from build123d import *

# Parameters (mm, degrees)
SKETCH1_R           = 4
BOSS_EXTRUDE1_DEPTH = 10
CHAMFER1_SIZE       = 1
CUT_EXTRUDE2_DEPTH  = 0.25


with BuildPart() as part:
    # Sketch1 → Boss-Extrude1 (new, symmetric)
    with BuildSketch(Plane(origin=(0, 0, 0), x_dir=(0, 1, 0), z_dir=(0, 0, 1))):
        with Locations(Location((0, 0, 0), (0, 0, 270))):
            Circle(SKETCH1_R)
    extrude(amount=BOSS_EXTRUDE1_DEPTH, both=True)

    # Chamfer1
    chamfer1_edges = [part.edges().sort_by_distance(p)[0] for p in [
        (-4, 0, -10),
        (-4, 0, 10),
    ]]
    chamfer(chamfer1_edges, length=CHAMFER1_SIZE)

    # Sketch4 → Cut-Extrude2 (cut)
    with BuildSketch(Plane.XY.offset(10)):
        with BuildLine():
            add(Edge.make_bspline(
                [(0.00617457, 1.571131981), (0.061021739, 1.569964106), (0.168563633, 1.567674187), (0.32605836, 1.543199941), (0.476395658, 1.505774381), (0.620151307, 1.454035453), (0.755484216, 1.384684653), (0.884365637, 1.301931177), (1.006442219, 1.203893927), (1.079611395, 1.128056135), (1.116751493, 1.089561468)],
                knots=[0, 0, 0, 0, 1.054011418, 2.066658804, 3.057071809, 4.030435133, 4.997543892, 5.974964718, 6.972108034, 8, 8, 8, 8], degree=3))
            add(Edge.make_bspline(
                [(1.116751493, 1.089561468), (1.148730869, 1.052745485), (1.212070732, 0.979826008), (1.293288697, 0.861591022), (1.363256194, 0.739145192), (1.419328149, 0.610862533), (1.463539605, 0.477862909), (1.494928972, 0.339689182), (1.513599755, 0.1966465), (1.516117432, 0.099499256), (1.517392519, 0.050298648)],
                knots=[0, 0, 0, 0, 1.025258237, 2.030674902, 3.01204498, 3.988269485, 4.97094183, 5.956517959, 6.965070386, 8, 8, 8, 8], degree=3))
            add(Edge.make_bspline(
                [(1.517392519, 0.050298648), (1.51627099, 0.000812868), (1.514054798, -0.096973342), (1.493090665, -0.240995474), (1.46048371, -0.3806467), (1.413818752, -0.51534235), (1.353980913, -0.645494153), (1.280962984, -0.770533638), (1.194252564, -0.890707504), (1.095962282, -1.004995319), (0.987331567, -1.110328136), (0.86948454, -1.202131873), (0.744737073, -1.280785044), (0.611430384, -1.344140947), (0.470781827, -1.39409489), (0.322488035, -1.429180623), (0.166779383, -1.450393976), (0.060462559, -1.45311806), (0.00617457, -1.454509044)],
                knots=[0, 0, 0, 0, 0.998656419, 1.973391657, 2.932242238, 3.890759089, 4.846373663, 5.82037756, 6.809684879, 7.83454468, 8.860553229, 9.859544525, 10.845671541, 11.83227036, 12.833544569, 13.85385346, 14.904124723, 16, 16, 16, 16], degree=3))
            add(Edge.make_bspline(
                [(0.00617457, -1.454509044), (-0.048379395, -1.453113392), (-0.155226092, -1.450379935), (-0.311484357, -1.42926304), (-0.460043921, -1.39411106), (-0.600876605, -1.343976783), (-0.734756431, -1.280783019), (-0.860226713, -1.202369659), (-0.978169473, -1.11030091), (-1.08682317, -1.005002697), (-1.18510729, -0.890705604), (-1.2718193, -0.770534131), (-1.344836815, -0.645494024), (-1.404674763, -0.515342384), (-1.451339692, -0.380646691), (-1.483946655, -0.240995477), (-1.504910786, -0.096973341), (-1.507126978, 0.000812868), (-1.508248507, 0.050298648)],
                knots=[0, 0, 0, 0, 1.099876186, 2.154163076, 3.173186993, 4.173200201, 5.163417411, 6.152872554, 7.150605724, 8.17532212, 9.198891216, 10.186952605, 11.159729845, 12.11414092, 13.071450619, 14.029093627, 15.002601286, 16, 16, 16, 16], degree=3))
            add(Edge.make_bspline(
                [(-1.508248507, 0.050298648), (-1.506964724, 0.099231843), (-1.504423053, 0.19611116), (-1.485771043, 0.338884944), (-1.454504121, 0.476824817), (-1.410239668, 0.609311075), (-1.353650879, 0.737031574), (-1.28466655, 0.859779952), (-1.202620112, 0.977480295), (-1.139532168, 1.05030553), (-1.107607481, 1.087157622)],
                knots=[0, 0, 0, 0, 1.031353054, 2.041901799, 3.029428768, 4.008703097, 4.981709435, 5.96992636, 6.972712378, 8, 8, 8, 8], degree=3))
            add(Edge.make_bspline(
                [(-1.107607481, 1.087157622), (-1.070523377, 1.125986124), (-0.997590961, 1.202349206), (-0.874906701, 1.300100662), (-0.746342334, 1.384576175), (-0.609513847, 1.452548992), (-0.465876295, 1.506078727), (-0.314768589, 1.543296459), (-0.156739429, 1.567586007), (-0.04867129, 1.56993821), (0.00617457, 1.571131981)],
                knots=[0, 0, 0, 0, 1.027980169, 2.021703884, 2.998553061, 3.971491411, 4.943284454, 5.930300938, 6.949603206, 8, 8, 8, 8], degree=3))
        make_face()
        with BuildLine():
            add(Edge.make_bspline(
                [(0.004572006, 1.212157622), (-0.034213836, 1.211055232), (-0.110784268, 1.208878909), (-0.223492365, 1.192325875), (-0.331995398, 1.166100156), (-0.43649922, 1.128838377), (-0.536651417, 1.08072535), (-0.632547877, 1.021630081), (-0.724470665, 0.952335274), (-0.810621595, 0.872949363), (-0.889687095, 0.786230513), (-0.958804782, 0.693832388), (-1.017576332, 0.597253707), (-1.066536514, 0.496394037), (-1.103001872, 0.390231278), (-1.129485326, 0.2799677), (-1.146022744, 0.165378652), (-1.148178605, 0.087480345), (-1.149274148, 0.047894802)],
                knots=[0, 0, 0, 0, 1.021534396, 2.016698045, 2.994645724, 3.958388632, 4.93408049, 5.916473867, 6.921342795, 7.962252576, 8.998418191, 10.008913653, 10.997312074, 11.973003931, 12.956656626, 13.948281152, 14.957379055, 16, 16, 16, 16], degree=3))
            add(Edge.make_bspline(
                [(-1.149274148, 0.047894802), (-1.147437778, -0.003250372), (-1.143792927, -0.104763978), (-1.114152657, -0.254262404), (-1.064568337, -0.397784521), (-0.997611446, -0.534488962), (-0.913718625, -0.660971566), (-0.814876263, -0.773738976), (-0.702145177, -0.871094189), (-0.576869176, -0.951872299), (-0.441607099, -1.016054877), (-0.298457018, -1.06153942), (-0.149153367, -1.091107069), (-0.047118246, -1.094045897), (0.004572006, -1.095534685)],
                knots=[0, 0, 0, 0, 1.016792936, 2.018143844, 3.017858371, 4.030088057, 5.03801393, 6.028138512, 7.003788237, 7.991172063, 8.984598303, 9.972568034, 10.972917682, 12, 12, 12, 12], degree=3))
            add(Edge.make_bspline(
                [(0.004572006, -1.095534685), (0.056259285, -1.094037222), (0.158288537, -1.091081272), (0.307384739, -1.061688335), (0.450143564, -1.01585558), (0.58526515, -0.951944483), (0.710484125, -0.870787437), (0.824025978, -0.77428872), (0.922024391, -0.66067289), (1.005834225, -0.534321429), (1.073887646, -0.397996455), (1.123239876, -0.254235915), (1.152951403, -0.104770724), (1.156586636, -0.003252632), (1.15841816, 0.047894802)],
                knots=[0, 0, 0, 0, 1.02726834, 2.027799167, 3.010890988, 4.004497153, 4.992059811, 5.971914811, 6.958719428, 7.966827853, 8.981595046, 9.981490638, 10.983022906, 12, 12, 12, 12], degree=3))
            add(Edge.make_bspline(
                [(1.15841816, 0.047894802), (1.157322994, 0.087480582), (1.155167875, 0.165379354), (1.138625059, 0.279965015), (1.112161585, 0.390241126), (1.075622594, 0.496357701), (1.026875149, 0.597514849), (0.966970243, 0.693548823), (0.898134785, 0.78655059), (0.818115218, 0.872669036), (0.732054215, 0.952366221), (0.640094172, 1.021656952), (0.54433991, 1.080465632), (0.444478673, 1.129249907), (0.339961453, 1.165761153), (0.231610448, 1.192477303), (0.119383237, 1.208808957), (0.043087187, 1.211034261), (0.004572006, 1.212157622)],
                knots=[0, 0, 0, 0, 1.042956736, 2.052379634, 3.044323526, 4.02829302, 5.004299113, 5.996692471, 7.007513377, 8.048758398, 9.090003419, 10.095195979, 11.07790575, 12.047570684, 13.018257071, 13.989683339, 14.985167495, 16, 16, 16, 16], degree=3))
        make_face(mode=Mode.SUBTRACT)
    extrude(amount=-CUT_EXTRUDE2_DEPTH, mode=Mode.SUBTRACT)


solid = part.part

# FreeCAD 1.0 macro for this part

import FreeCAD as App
import Part
import Sketcher
Q = App.Units.Quantity


def edges_at(feature, points):
    """Names of the edges that pass closest to the given points."""
    edges = feature.Shape.Edges
    near = lambda p: min(range(len(edges)), key=lambda i: edges[i].distToShape(Part.Vertex(*p))[0])
    return sorted({f"Edge{near(p) + 1}" for p in points})

doc = App.newDocument("Part")
body = doc.addObject("PartDesign::Body", "Body")

# Sketch on XY plane
sketch1 = doc.addObject("Sketcher::SketchObject", "Sketch")
body.addObject(sketch1)
sketch1.AttachmentSupport = (doc.XY_Plane, [""])
sketch1.MapMode = "FlatFace"
sketch1.addGeometry(Part.Circle(App.Vector(0, 0, 0), App.Vector(0, 0, 1), 4), False)
sketch1.addConstraint([
    Sketcher.Constraint("Coincident", 0, 3, -1, 1),
    Sketcher.Constraint("Diameter", 0, Q("8 mm")),
])
pad1 = doc.addObject("PartDesign::Pad", "Pad")
body.addObject(pad1)
pad1.Profile = sketch1
pad1.Length = 20
pad1.Midplane = True
doc.recompute()

chamfer = doc.addObject("PartDesign::Chamfer", "Chamfer")
body.addObject(chamfer)
chamfer.Base = (pad1, edges_at(pad1, [(-4, 0, -10), (-4, 0, 10)]))
chamfer.Size = 1

# Sketch on XY plane
sketch2 = doc.addObject("Sketcher::SketchObject", "Sketch001")
body.addObject(sketch2)
sketch2.AttachmentSupport = (doc.XY_Plane, [""])
sketch2.MapMode = "FlatFace"
sketch2.AttachmentOffset = App.Placement(App.Vector(0, 0, 10), App.Rotation())
sketch2.addGeometry([
    Part.BSplineCurve([App.Vector(0.006175, 1.571132, 0), App.Vector(0.061022, 1.569964, 0), App.Vector(0.168564, 1.567674, 0), App.Vector(0.326058, 1.5432, 0), App.Vector(0.476396, 1.505774, 0), App.Vector(0.620151, 1.454035, 0), App.Vector(0.755484, 1.384685, 0), App.Vector(0.884366, 1.301931, 0), App.Vector(1.006442, 1.203894, 0), App.Vector(1.079611, 1.128056, 0), App.Vector(1.116751, 1.089561, 0)], [4, 1, 1, 1, 1, 1, 1, 1, 4], [0, 1.054011418, 2.066658804, 3.057071809, 4.030435133, 4.997543892, 5.974964718, 6.972108034, 8], False, 3, [1, 1, 1, 1, 1, 1, 1, 1, 1, 1, 1], False),  # 0
    Part.BSplineCurve([App.Vector(-1.107607, 1.087158, 0), App.Vector(-1.070523, 1.125986, 0), App.Vector(-0.997591, 1.202349, 0), App.Vector(-0.874907, 1.300101, 0), App.Vector(-0.746342, 1.384576, 0), App.Vector(-0.609514, 1.452549, 0), App.Vector(-0.465876, 1.506079, 0), App.Vector(-0.314769, 1.543296, 0), App.Vector(-0.156739, 1.567586, 0), App.Vector(-0.048671, 1.569938, 0), App.Vector(0.006175, 1.571132, 0)], [4, 1, 1, 1, 1, 1, 1, 1, 4], [0, 1.027980169, 2.021703884, 2.998553061, 3.971491411, 4.943284454, 5.930300938, 6.949603206, 8], False, 3, [1, 1, 1, 1, 1, 1, 1, 1, 1, 1, 1], False),  # 1
    Part.BSplineCurve([App.Vector(-1.508249, 0.050299, 0), App.Vector(-1.506965, 0.099232, 0), App.Vector(-1.504423, 0.196111, 0), App.Vector(-1.485771, 0.338885, 0), App.Vector(-1.454504, 0.476825, 0), App.Vector(-1.41024, 0.609311, 0), App.Vector(-1.353651, 0.737032, 0), App.Vector(-1.284667, 0.85978, 0), App.Vector(-1.20262, 0.97748, 0), App.Vector(-1.139532, 1.050306, 0), App.Vector(-1.107607, 1.087158, 0)], [4, 1, 1, 1, 1, 1, 1, 1, 4], [0, 1.031353054, 2.041901799, 3.029428768, 4.008703097, 4.981709435, 5.96992636, 6.972712378, 8], False, 3, [1, 1, 1, 1, 1, 1, 1, 1, 1, 1, 1], False),  # 2
    Part.BSplineCurve([App.Vector(0.006175, -1.454509, 0), App.Vector(-0.048379, -1.453113, 0), App.Vector(-0.155226, -1.45038, 0), App.Vector(-0.311484, -1.429263, 0), App.Vector(-0.460044, -1.394111, 0), App.Vector(-0.600877, -1.343977, 0), App.Vector(-0.734756, -1.280783, 0), App.Vector(-0.860227, -1.20237, 0), App.Vector(-0.978169, -1.110301, 0), App.Vector(-1.086823, -1.005003, 0), App.Vector(-1.185107, -0.890706, 0), App.Vector(-1.271819, -0.770534, 0), App.Vector(-1.344837, -0.645494, 0), App.Vector(-1.404675, -0.515342, 0), App.Vector(-1.45134, -0.380647, 0), App.Vector(-1.483947, -0.240995, 0), App.Vector(-1.504911, -0.096973, 0), App.Vector(-1.507127, 0.000813, 0), App.Vector(-1.508249, 0.050299, 0)], [4, 1, 1, 1, 1, 1, 1, 1, 1, 1, 1, 1, 1, 1, 1, 1, 4], [0, 1.099876186, 2.154163076, 3.173186993, 4.173200201, 5.163417411, 6.152872554, 7.150605724, 8.17532212, 9.198891216, 10.186952605, 11.159729845, 12.11414092, 13.071450619, 14.029093627, 15.002601286, 16], False, 3, [1, 1, 1, 1, 1, 1, 1, 1, 1, 1, 1, 1, 1, 1, 1, 1, 1, 1, 1], False),  # 3
    Part.BSplineCurve([App.Vector(1.517393, 0.050299, 0), App.Vector(1.516271, 0.000813, 0), App.Vector(1.514055, -0.096973, 0), App.Vector(1.493091, -0.240995, 0), App.Vector(1.460484, -0.380647, 0), App.Vector(1.413819, -0.515342, 0), App.Vector(1.353981, -0.645494, 0), App.Vector(1.280963, -0.770534, 0), App.Vector(1.194253, -0.890708, 0), App.Vector(1.095962, -1.004995, 0), App.Vector(0.987332, -1.110328, 0), App.Vector(0.869485, -1.202132, 0), App.Vector(0.744737, -1.280785, 0), App.Vector(0.61143, -1.344141, 0), App.Vector(0.470782, -1.394095, 0), App.Vector(0.322488, -1.429181, 0), App.Vector(0.166779, -1.450394, 0), App.Vector(0.060463, -1.453118, 0), App.Vector(0.006175, -1.454509, 0)], [4, 1, 1, 1, 1, 1, 1, 1, 1, 1, 1, 1, 1, 1, 1, 1, 4], [0, 0.998656419, 1.973391657, 2.932242238, 3.890759089, 4.846373663, 5.82037756, 6.809684879, 7.83454468, 8.860553229, 9.859544525, 10.845671541, 11.83227036, 12.833544569, 13.85385346, 14.904124723, 16], False, 3, [1, 1, 1, 1, 1, 1, 1, 1, 1, 1, 1, 1, 1, 1, 1, 1, 1, 1, 1], False),  # 4
    Part.BSplineCurve([App.Vector(1.116751, 1.089561, 0), App.Vector(1.148731, 1.052745, 0), App.Vector(1.212071, 0.979826, 0), App.Vector(1.293289, 0.861591, 0), App.Vector(1.363256, 0.739145, 0), App.Vector(1.419328, 0.610863, 0), App.Vector(1.46354, 0.477863, 0), App.Vector(1.494929, 0.339689, 0), App.Vector(1.5136, 0.196647, 0), App.Vector(1.516117, 0.099499, 0), App.Vector(1.517393, 0.050299, 0)], [4, 1, 1, 1, 1, 1, 1, 1, 4], [0, 1.025258237, 2.030674902, 3.01204498, 3.988269485, 4.97094183, 5.956517959, 6.965070386, 8], False, 3, [1, 1, 1, 1, 1, 1, 1, 1, 1, 1, 1], False),  # 5
    Part.BSplineCurve([App.Vector(1.158418, 0.047895, 0), App.Vector(1.157323, 0.087481, 0), App.Vector(1.155168, 0.165379, 0), App.Vector(1.138625, 0.279965, 0), App.Vector(1.112162, 0.390241, 0), App.Vector(1.075623, 0.496358, 0), App.Vector(1.026875, 0.597515, 0), App.Vector(0.96697, 0.693549, 0), App.Vector(0.898135, 0.786551, 0), App.Vector(0.818115, 0.872669, 0), App.Vector(0.732054, 0.952366, 0), App.Vector(0.640094, 1.021657, 0), App.Vector(0.54434, 1.080466, 0), App.Vector(0.444479, 1.12925, 0), App.Vector(0.339961, 1.165761, 0), App.Vector(0.23161, 1.192477, 0), App.Vector(0.119383, 1.208809, 0), App.Vector(0.043087, 1.211034, 0), App.Vector(0.004572, 1.212158, 0)], [4, 1, 1, 1, 1, 1, 1, 1, 1, 1, 1, 1, 1, 1, 1, 1, 4], [0, 1.042956736, 2.052379634, 3.044323526, 4.02829302, 5.004299113, 5.996692471, 7.007513377, 8.048758398, 9.090003419, 10.095195979, 11.07790575, 12.047570684, 13.018257071, 13.989683339, 14.985167495, 16], False, 3, [1, 1, 1, 1, 1, 1, 1, 1, 1, 1, 1, 1, 1, 1, 1, 1, 1, 1, 1], False),  # 6
    Part.BSplineCurve([App.Vector(0.004572, -1.095535, 0), App.Vector(0.056259, -1.094037, 0), App.Vector(0.158289, -1.091081, 0), App.Vector(0.307385, -1.061688, 0), App.Vector(0.450144, -1.015856, 0), App.Vector(0.585265, -0.951944, 0), App.Vector(0.710484, -0.870787, 0), App.Vector(0.824026, -0.774289, 0), App.Vector(0.922024, -0.660673, 0), App.Vector(1.005834, -0.534321, 0), App.Vector(1.073888, -0.397996, 0), App.Vector(1.12324, -0.254236, 0), App.Vector(1.152951, -0.104771, 0), App.Vector(1.156587, -0.003253, 0), App.Vector(1.158418, 0.047895, 0)], [4, 1, 1, 1, 1, 1, 1, 1, 1, 1, 1, 1, 4], [0, 1.02726834, 2.027799167, 3.010890988, 4.004497153, 4.992059811, 5.971914811, 6.958719428, 7.966827853, 8.981595046, 9.981490638, 10.983022906, 12], False, 3, [1, 1, 1, 1, 1, 1, 1, 1, 1, 1, 1, 1, 1, 1, 1], False),  # 7
    Part.BSplineCurve([App.Vector(-1.149274, 0.047895, 0), App.Vector(-1.147438, -0.00325, 0), App.Vector(-1.143793, -0.104764, 0), App.Vector(-1.114153, -0.254262, 0), App.Vector(-1.064568, -0.397785, 0), App.Vector(-0.997611, -0.534489, 0), App.Vector(-0.913719, -0.660972, 0), App.Vector(-0.814876, -0.773739, 0), App.Vector(-0.702145, -0.871094, 0), App.Vector(-0.576869, -0.951872, 0), App.Vector(-0.441607, -1.016055, 0), App.Vector(-0.298457, -1.061539, 0), App.Vector(-0.149153, -1.091107, 0), App.Vector(-0.047118, -1.094046, 0), App.Vector(0.004572, -1.095535, 0)], [4, 1, 1, 1, 1, 1, 1, 1, 1, 1, 1, 1, 4], [0, 1.016792936, 2.018143844, 3.017858371, 4.030088057, 5.03801393, 6.028138512, 7.003788237, 7.991172063, 8.984598303, 9.972568034, 10.972917682, 12], False, 3, [1, 1, 1, 1, 1, 1, 1, 1, 1, 1, 1, 1, 1, 1, 1], False),  # 8
    Part.BSplineCurve([App.Vector(0.004572, 1.212158, 0), App.Vector(-0.034214, 1.211055, 0), App.Vector(-0.110784, 1.208879, 0), App.Vector(-0.223492, 1.192326, 0), App.Vector(-0.331995, 1.1661, 0), App.Vector(-0.436499, 1.128838, 0), App.Vector(-0.536651, 1.080725, 0), App.Vector(-0.632548, 1.02163, 0), App.Vector(-0.724471, 0.952335, 0), App.Vector(-0.810622, 0.872949, 0), App.Vector(-0.889687, 0.786231, 0), App.Vector(-0.958805, 0.693832, 0), App.Vector(-1.017576, 0.597254, 0), App.Vector(-1.066537, 0.496394, 0), App.Vector(-1.103002, 0.390231, 0), App.Vector(-1.129485, 0.279968, 0), App.Vector(-1.146023, 0.165379, 0), App.Vector(-1.148179, 0.08748, 0), App.Vector(-1.149274, 0.047895, 0)], [4, 1, 1, 1, 1, 1, 1, 1, 1, 1, 1, 1, 1, 1, 1, 1, 4], [0, 1.021534396, 2.016698045, 2.994645724, 3.958388632, 4.93408049, 5.916473867, 6.921342795, 7.962252576, 8.998418191, 10.008913653, 10.997312074, 11.973003931, 12.956656626, 13.948281152, 14.957379055, 16], False, 3, [1, 1, 1, 1, 1, 1, 1, 1, 1, 1, 1, 1, 1, 1, 1, 1, 1, 1, 1], False),  # 9
], False)
sketch2.addConstraint([
    Sketcher.Constraint("Block", 0),
    Sketcher.Constraint("Block", 1),
    Sketcher.Constraint("Block", 2),
    Sketcher.Constraint("Block", 3),
    Sketcher.Constraint("Block", 4),
    Sketcher.Constraint("Block", 5),
    Sketcher.Constraint("Block", 6),
    Sketcher.Constraint("Block", 7),
    Sketcher.Constraint("Block", 8),
    Sketcher.Constraint("Block", 9),
])
pocket1 = doc.addObject("PartDesign::Pocket", "Pocket")
body.addObject(pocket1)
pocket1.Profile = sketch2
pocket1.Length = 0.25

doc.recompute()
